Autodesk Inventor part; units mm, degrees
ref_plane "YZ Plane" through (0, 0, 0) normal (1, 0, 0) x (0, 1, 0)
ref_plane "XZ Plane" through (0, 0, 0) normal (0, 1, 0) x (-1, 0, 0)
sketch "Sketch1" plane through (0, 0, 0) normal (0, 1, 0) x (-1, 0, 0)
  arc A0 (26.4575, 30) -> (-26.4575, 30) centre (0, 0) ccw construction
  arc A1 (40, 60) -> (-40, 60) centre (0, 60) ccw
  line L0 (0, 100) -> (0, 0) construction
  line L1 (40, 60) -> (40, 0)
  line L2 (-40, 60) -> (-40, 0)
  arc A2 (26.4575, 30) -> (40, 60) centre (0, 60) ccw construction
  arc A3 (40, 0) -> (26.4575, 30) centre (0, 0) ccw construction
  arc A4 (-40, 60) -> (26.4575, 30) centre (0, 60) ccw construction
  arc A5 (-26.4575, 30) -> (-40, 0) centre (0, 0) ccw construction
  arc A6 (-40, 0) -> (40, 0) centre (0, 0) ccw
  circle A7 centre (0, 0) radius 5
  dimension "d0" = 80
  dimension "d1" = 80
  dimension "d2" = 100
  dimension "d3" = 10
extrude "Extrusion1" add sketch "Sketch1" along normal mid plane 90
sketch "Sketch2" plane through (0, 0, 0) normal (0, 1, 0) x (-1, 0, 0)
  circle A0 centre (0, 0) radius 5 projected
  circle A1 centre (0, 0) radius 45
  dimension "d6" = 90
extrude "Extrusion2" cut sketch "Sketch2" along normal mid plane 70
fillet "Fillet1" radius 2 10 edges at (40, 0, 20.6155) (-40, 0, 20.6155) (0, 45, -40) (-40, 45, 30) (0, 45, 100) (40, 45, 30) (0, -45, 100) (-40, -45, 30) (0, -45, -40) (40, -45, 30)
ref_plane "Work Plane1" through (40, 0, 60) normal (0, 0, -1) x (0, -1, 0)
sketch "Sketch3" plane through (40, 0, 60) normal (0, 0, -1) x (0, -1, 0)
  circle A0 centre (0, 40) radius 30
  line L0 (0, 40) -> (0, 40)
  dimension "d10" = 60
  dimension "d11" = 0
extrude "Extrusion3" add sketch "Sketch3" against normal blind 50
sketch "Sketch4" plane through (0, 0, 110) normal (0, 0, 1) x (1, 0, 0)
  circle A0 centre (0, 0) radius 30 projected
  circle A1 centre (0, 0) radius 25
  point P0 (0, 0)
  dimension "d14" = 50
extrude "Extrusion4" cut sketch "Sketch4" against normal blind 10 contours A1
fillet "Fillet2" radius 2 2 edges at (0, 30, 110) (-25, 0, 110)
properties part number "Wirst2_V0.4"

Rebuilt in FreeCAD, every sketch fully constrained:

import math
import FreeCAD as App
import Part
import Sketcher

V = App.Vector


def edges_at(feature, points):
    """Names of the edges that pass closest to the given points."""
    edges = feature.Shape.Edges
    near = lambda p: min(range(len(edges)), key=lambda i: edges[i].distToShape(Part.Vertex(*p))[0])
    return sorted({f"Edge{near(p) + 1}" for p in points})

doc = App.newDocument("Part")
body = doc.addObject("PartDesign::Body", "Body")

# Sketch on XZ plane
sketch1 = body.newObject("Sketcher::SketchObject", "Sketch")
sketch1.AttachmentSupport = (doc.getObject("XZ_Plane"), [""])
sketch1.MapMode = "FlatFace"
sketch1.addGeometry(Part.LineSegment(V(-40, 0, 0), V(-40, 60, 0)), False)
sketch1.addGeometry(Part.ArcOfCircle(Part.Circle(V(0, 60, 0), V(0, 0, 1), 40), math.radians(0), math.radians(180)), False)
sketch1.addGeometry(Part.LineSegment(V(40, 60, 0), V(40, 0, 0)), False)
sketch1.addGeometry(Part.ArcOfCircle(Part.Circle(V(0, 0, 0), V(0, 0, 1), 40), math.radians(180), math.radians(360)), False)
sketch1.addGeometry(Part.Circle(V(0, 0, 0), V(0, 0, 1), 5), False)
sketch1.addConstraint(Sketcher.Constraint("Tangent", 0, 2, 1, 2))
sketch1.addConstraint(Sketcher.Constraint("Tangent", 1, 1, 2, 1))
sketch1.addConstraint(Sketcher.Constraint("Tangent", 2, 2, 3, 2))
sketch1.addConstraint(Sketcher.Constraint("Tangent", 3, 1, 0, 1))
sketch1.addConstraint(Sketcher.Constraint("Vertical", 0))
sketch1.addConstraint(Sketcher.Constraint("Vertical", 2))
sketch1.addConstraint(Sketcher.Constraint("Coincident", 3, 3, -1, 1))
sketch1.addConstraint(Sketcher.Constraint("Coincident", 4, 3, -1, 1))
sketch1.addConstraint(Sketcher.Constraint("Diameter", 4, 10.0))
sketch1.addConstraint(Sketcher.Constraint("Radius", 1, 40.0))
sketch1.addConstraint(Sketcher.Constraint("DistanceY", 0, 1, 0, 2, 60.0))
pad1 = body.newObject("PartDesign::Pad", "Pad")
pad1.Profile = sketch1
pad1.Length = 90
pad1.Midplane = True

# Sketch on XZ plane
sketch2 = body.newObject("Sketcher::SketchObject", "Sketch001")
sketch2.AttachmentSupport = (doc.getObject("XZ_Plane"), [""])
sketch2.MapMode = "FlatFace"
sketch2.addGeometry(Part.Circle(V(0, 0, 0), V(0, 0, 1), 45), False)
sketch2.addGeometry(Part.Circle(V(0, 0, 0), V(0, 0, 1), 5), False)
sketch2.addConstraint(Sketcher.Constraint("Coincident", 0, 3, -1, 1))
sketch2.addConstraint(Sketcher.Constraint("Coincident", 1, 3, -1, 1))
sketch2.addConstraint(Sketcher.Constraint("Diameter", 0, 90.0))
sketch2.addConstraint(Sketcher.Constraint("Diameter", 1, 10.0))
pocket1 = body.newObject("PartDesign::Pocket", "Pocket")
pocket1.Profile = sketch2
pocket1.Length = 70
pocket1.Midplane = True
doc.recompute()

fillet = body.newObject("PartDesign::Fillet", "Fillet")
fillet.Base = (pocket1, edges_at(pocket1, [
    (40, 0, 20.616),
    (-40, 0, 20.616),
    (0, 45, -40),
    (-40, 45, 30),
    (0, 45, 100),
    (40, 45, 30),
    (0, -45, 100),
    (-40, -45, 30),
    (0, -45, -40),
    (40, -45, 30),
]))
fillet.Radius = 2

# Sketch on XY plane
sketch3 = body.newObject("Sketcher::SketchObject", "Sketch002")
sketch3.AttachmentSupport = (doc.getObject("XY_Plane"), [""])
sketch3.MapMode = "FlatFace"
sketch3.AttachmentOffset = App.Placement(V(0, 0, 60), App.Rotation())
sketch3.addGeometry(Part.Circle(V(0, 0, 0), V(0, 0, 1), 30), False)
sketch3.addConstraint(Sketcher.Constraint("Coincident", 0, 3, -1, 1))
sketch3.addConstraint(Sketcher.Constraint("Diameter", 0, 60.0))
pad2 = body.newObject("PartDesign::Pad", "Pad001")
pad2.Profile = sketch3
pad2.Length = 50

# Sketch on XY plane
sketch4 = body.newObject("Sketcher::SketchObject", "Sketch003")
sketch4.AttachmentSupport = (doc.getObject("XY_Plane"), [""])
sketch4.MapMode = "FlatFace"
sketch4.AttachmentOffset = App.Placement(V(0, 0, 110), App.Rotation())
sketch4.addGeometry(Part.Circle(V(0, 0, 0), V(0, 0, 1), 25), False)
sketch4.addConstraint(Sketcher.Constraint("Coincident", 0, 3, -1, 1))
sketch4.addConstraint(Sketcher.Constraint("Diameter", 0, 50.0))
pocket2 = body.newObject("PartDesign::Pocket", "Pocket001")
pocket2.Profile = sketch4
pocket2.Length = 10
doc.recompute()

fillet2 = body.newObject("PartDesign::Fillet", "Fillet001")
fillet2.Base = (pocket2, edges_at(pocket2, [(0, 30, 110), (-25, 0, 110)]))
fillet2.Radius = 2

doc.recompute()
